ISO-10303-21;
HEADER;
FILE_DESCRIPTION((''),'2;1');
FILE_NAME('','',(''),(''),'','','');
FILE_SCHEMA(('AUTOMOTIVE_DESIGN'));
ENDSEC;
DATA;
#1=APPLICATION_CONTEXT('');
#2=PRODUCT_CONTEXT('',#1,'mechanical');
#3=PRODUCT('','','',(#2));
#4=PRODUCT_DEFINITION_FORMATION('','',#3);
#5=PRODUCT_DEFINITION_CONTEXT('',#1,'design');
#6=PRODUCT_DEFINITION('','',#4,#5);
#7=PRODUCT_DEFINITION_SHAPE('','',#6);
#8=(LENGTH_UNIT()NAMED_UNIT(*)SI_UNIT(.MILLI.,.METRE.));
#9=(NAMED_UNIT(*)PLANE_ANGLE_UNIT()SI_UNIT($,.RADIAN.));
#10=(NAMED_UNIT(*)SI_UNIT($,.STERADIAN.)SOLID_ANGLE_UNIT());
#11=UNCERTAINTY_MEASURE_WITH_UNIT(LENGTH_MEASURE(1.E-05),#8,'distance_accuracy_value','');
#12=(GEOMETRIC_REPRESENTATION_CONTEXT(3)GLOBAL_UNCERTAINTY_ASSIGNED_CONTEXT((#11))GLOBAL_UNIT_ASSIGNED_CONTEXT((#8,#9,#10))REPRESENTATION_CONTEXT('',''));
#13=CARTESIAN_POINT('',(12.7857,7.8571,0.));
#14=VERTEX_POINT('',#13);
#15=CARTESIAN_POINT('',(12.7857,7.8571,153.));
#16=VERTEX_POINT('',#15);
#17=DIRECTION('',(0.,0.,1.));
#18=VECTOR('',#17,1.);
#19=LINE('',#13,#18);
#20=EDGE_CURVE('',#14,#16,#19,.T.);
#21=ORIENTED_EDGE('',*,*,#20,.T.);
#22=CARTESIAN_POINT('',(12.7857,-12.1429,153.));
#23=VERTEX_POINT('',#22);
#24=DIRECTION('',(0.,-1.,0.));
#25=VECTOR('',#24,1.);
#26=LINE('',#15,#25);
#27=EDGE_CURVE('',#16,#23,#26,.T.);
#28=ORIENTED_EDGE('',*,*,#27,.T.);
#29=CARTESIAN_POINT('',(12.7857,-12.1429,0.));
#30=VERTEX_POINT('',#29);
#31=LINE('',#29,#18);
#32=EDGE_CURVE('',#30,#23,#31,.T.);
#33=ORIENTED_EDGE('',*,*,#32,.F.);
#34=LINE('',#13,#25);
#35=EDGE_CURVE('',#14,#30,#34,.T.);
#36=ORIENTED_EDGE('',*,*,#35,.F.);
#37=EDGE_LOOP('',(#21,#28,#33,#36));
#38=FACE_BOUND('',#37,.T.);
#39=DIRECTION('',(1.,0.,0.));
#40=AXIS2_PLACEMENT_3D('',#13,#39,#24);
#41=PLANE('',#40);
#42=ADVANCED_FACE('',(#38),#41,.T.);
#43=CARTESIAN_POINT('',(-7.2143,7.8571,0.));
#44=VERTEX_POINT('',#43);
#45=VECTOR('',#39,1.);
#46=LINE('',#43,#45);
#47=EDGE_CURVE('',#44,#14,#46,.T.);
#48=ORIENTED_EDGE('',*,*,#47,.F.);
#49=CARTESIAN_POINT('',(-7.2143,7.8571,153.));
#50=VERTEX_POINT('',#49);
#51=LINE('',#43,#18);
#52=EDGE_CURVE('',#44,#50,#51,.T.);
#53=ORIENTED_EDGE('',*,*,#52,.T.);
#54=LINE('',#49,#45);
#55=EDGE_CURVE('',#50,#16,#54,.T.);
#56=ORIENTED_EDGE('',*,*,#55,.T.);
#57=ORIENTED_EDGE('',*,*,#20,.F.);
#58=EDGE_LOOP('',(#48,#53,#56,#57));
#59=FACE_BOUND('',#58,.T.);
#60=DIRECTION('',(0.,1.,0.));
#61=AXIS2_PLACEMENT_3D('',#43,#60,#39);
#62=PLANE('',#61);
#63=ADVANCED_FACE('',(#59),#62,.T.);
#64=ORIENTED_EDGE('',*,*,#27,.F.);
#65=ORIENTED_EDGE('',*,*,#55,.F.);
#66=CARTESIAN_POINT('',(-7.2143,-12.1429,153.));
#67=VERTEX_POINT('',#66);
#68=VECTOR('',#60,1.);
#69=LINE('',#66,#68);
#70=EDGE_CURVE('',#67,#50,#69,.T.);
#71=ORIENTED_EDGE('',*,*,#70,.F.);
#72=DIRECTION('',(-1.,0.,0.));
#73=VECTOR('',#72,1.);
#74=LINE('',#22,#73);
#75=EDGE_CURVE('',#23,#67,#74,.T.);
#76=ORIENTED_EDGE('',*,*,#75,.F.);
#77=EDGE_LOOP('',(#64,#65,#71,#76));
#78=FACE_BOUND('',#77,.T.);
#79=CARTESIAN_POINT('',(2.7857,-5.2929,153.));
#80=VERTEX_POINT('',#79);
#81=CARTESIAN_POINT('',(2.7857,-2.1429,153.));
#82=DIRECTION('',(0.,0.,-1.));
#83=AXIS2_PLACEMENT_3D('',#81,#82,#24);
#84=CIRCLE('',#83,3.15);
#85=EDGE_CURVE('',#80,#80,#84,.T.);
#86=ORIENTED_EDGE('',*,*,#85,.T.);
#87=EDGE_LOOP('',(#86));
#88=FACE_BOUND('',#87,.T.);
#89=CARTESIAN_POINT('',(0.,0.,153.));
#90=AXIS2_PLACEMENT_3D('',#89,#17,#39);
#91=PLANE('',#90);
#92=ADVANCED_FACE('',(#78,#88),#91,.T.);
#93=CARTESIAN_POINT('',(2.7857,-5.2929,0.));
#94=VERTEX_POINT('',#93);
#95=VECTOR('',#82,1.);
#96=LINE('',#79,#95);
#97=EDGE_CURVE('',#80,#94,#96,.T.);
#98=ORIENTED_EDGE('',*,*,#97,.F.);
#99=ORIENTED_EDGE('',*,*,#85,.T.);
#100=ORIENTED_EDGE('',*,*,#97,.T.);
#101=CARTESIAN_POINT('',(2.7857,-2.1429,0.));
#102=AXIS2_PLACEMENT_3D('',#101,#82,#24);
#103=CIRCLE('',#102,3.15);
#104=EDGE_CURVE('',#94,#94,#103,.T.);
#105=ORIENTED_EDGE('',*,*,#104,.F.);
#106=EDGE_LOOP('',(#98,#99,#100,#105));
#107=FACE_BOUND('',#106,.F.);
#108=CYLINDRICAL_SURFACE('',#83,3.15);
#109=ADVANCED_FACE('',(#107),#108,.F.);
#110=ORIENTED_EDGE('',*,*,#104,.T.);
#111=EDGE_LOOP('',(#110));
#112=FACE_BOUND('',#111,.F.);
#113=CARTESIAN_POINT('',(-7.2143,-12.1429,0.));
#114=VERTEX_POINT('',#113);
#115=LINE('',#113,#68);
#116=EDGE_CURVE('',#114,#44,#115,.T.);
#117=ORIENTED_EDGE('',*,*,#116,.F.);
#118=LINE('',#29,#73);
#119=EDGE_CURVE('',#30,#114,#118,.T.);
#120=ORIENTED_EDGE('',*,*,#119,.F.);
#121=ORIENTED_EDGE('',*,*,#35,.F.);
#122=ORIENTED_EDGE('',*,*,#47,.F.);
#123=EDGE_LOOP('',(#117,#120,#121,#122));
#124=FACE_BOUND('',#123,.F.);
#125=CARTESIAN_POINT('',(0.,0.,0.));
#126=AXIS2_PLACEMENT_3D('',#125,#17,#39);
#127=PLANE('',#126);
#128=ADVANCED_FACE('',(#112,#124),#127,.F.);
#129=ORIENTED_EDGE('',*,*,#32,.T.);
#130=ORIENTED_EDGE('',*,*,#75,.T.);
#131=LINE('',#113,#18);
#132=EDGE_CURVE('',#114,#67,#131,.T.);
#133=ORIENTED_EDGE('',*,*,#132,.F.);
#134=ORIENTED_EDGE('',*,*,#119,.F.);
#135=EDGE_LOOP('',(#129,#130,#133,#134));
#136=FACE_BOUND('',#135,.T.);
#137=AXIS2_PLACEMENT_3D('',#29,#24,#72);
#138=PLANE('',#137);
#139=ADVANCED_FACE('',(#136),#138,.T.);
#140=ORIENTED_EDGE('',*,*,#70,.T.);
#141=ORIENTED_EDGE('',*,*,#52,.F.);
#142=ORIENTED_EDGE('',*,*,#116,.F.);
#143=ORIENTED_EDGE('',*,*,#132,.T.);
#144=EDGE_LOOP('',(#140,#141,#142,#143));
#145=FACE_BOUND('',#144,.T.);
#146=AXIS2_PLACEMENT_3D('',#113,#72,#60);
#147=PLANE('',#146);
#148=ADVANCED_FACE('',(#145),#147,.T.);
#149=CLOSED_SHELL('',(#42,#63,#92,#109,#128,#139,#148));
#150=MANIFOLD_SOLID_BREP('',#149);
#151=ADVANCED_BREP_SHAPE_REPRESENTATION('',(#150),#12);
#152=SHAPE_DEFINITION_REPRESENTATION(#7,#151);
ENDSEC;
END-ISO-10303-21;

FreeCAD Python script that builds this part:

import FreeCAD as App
import Part
import Sketcher
from FreeCAD import Vector

doc = App.newDocument("Part")
body = doc.addObject("PartDesign::Body", "Body")

sketch1 = doc.addObject("Sketcher::SketchObject", "Sketch")
body.addObject(sketch1)
sketch1.AttachmentSupport = (doc.XY_Plane, [""])
sketch1.MapMode = "FlatFace"
sketch1.addGeometry([
    Part.LineSegment(Vector(13, 8, 0), Vector(-7, 8, 0)),
    Part.LineSegment(Vector(-7, 8, 0), Vector(-7, -12, 0)),
    Part.LineSegment(Vector(-7, -12, 0), Vector(13, -12, 0)),
    Part.LineSegment(Vector(13, -12, 0), Vector(13, 8, 0)),
], False)
sketch1.addConstraint([
    Sketcher.Constraint("Coincident", 0, 2, 1, 1),
    Sketcher.Constraint("Coincident", 1, 2, 2, 1),
    Sketcher.Constraint("Coincident", 2, 2, 3, 1),
    Sketcher.Constraint("Coincident", 3, 2, 0, 1),
    Sketcher.Constraint("Horizontal", 0),
    Sketcher.Constraint("Vertical", 1),
    Sketcher.Constraint("Horizontal", 2),
    Sketcher.Constraint("Vertical", 3),
    Sketcher.Constraint("Equal", 2, 1),
    Sketcher.Constraint("DistanceX", 0, 2, 0, 1, 20.0),
    Sketcher.Constraint("DistanceY", -1, 1, 0, 2, 7.857),
    Sketcher.Constraint("DistanceX", 0, 2, -1, 1, 7.2143),
])
pad1 = doc.addObject("PartDesign::Pad", "Pad")
body.addObject(pad1)
pad1.Profile = sketch1
pad1.Length = 153

sketch2 = doc.addObject("Sketcher::SketchObject", "Sketch001")
body.addObject(sketch2)
sketch2.AttachmentSupport = (doc.XY_Plane, [""])
sketch2.MapMode = "FlatFace"
sketch2.AttachmentOffset = App.Placement(Vector(0, 0, 153), App.Rotation())
sketch2.addGeometry(Part.Circle(Vector(2.8, -2.1, 0), Vector(0, 0, 1), 3.1), False)
sketch2.addConstraint([
    Sketcher.Constraint("Diameter", 0, 6.3),
    Sketcher.Constraint("DistanceY", 0, 3, -1, 1, 2.143),
    Sketcher.Constraint("DistanceX", -1, 1, 0, 3, 2.7857),
])
doc.recompute()
hole = doc.addObject("PartDesign::Hole", "Hole")
body.addObject(hole)
hole.Profile = sketch2
hole.ThreadType = "None"
hole.Diameter = 6.3
hole.DepthType = "ThroughAll"

doc.recompute()
